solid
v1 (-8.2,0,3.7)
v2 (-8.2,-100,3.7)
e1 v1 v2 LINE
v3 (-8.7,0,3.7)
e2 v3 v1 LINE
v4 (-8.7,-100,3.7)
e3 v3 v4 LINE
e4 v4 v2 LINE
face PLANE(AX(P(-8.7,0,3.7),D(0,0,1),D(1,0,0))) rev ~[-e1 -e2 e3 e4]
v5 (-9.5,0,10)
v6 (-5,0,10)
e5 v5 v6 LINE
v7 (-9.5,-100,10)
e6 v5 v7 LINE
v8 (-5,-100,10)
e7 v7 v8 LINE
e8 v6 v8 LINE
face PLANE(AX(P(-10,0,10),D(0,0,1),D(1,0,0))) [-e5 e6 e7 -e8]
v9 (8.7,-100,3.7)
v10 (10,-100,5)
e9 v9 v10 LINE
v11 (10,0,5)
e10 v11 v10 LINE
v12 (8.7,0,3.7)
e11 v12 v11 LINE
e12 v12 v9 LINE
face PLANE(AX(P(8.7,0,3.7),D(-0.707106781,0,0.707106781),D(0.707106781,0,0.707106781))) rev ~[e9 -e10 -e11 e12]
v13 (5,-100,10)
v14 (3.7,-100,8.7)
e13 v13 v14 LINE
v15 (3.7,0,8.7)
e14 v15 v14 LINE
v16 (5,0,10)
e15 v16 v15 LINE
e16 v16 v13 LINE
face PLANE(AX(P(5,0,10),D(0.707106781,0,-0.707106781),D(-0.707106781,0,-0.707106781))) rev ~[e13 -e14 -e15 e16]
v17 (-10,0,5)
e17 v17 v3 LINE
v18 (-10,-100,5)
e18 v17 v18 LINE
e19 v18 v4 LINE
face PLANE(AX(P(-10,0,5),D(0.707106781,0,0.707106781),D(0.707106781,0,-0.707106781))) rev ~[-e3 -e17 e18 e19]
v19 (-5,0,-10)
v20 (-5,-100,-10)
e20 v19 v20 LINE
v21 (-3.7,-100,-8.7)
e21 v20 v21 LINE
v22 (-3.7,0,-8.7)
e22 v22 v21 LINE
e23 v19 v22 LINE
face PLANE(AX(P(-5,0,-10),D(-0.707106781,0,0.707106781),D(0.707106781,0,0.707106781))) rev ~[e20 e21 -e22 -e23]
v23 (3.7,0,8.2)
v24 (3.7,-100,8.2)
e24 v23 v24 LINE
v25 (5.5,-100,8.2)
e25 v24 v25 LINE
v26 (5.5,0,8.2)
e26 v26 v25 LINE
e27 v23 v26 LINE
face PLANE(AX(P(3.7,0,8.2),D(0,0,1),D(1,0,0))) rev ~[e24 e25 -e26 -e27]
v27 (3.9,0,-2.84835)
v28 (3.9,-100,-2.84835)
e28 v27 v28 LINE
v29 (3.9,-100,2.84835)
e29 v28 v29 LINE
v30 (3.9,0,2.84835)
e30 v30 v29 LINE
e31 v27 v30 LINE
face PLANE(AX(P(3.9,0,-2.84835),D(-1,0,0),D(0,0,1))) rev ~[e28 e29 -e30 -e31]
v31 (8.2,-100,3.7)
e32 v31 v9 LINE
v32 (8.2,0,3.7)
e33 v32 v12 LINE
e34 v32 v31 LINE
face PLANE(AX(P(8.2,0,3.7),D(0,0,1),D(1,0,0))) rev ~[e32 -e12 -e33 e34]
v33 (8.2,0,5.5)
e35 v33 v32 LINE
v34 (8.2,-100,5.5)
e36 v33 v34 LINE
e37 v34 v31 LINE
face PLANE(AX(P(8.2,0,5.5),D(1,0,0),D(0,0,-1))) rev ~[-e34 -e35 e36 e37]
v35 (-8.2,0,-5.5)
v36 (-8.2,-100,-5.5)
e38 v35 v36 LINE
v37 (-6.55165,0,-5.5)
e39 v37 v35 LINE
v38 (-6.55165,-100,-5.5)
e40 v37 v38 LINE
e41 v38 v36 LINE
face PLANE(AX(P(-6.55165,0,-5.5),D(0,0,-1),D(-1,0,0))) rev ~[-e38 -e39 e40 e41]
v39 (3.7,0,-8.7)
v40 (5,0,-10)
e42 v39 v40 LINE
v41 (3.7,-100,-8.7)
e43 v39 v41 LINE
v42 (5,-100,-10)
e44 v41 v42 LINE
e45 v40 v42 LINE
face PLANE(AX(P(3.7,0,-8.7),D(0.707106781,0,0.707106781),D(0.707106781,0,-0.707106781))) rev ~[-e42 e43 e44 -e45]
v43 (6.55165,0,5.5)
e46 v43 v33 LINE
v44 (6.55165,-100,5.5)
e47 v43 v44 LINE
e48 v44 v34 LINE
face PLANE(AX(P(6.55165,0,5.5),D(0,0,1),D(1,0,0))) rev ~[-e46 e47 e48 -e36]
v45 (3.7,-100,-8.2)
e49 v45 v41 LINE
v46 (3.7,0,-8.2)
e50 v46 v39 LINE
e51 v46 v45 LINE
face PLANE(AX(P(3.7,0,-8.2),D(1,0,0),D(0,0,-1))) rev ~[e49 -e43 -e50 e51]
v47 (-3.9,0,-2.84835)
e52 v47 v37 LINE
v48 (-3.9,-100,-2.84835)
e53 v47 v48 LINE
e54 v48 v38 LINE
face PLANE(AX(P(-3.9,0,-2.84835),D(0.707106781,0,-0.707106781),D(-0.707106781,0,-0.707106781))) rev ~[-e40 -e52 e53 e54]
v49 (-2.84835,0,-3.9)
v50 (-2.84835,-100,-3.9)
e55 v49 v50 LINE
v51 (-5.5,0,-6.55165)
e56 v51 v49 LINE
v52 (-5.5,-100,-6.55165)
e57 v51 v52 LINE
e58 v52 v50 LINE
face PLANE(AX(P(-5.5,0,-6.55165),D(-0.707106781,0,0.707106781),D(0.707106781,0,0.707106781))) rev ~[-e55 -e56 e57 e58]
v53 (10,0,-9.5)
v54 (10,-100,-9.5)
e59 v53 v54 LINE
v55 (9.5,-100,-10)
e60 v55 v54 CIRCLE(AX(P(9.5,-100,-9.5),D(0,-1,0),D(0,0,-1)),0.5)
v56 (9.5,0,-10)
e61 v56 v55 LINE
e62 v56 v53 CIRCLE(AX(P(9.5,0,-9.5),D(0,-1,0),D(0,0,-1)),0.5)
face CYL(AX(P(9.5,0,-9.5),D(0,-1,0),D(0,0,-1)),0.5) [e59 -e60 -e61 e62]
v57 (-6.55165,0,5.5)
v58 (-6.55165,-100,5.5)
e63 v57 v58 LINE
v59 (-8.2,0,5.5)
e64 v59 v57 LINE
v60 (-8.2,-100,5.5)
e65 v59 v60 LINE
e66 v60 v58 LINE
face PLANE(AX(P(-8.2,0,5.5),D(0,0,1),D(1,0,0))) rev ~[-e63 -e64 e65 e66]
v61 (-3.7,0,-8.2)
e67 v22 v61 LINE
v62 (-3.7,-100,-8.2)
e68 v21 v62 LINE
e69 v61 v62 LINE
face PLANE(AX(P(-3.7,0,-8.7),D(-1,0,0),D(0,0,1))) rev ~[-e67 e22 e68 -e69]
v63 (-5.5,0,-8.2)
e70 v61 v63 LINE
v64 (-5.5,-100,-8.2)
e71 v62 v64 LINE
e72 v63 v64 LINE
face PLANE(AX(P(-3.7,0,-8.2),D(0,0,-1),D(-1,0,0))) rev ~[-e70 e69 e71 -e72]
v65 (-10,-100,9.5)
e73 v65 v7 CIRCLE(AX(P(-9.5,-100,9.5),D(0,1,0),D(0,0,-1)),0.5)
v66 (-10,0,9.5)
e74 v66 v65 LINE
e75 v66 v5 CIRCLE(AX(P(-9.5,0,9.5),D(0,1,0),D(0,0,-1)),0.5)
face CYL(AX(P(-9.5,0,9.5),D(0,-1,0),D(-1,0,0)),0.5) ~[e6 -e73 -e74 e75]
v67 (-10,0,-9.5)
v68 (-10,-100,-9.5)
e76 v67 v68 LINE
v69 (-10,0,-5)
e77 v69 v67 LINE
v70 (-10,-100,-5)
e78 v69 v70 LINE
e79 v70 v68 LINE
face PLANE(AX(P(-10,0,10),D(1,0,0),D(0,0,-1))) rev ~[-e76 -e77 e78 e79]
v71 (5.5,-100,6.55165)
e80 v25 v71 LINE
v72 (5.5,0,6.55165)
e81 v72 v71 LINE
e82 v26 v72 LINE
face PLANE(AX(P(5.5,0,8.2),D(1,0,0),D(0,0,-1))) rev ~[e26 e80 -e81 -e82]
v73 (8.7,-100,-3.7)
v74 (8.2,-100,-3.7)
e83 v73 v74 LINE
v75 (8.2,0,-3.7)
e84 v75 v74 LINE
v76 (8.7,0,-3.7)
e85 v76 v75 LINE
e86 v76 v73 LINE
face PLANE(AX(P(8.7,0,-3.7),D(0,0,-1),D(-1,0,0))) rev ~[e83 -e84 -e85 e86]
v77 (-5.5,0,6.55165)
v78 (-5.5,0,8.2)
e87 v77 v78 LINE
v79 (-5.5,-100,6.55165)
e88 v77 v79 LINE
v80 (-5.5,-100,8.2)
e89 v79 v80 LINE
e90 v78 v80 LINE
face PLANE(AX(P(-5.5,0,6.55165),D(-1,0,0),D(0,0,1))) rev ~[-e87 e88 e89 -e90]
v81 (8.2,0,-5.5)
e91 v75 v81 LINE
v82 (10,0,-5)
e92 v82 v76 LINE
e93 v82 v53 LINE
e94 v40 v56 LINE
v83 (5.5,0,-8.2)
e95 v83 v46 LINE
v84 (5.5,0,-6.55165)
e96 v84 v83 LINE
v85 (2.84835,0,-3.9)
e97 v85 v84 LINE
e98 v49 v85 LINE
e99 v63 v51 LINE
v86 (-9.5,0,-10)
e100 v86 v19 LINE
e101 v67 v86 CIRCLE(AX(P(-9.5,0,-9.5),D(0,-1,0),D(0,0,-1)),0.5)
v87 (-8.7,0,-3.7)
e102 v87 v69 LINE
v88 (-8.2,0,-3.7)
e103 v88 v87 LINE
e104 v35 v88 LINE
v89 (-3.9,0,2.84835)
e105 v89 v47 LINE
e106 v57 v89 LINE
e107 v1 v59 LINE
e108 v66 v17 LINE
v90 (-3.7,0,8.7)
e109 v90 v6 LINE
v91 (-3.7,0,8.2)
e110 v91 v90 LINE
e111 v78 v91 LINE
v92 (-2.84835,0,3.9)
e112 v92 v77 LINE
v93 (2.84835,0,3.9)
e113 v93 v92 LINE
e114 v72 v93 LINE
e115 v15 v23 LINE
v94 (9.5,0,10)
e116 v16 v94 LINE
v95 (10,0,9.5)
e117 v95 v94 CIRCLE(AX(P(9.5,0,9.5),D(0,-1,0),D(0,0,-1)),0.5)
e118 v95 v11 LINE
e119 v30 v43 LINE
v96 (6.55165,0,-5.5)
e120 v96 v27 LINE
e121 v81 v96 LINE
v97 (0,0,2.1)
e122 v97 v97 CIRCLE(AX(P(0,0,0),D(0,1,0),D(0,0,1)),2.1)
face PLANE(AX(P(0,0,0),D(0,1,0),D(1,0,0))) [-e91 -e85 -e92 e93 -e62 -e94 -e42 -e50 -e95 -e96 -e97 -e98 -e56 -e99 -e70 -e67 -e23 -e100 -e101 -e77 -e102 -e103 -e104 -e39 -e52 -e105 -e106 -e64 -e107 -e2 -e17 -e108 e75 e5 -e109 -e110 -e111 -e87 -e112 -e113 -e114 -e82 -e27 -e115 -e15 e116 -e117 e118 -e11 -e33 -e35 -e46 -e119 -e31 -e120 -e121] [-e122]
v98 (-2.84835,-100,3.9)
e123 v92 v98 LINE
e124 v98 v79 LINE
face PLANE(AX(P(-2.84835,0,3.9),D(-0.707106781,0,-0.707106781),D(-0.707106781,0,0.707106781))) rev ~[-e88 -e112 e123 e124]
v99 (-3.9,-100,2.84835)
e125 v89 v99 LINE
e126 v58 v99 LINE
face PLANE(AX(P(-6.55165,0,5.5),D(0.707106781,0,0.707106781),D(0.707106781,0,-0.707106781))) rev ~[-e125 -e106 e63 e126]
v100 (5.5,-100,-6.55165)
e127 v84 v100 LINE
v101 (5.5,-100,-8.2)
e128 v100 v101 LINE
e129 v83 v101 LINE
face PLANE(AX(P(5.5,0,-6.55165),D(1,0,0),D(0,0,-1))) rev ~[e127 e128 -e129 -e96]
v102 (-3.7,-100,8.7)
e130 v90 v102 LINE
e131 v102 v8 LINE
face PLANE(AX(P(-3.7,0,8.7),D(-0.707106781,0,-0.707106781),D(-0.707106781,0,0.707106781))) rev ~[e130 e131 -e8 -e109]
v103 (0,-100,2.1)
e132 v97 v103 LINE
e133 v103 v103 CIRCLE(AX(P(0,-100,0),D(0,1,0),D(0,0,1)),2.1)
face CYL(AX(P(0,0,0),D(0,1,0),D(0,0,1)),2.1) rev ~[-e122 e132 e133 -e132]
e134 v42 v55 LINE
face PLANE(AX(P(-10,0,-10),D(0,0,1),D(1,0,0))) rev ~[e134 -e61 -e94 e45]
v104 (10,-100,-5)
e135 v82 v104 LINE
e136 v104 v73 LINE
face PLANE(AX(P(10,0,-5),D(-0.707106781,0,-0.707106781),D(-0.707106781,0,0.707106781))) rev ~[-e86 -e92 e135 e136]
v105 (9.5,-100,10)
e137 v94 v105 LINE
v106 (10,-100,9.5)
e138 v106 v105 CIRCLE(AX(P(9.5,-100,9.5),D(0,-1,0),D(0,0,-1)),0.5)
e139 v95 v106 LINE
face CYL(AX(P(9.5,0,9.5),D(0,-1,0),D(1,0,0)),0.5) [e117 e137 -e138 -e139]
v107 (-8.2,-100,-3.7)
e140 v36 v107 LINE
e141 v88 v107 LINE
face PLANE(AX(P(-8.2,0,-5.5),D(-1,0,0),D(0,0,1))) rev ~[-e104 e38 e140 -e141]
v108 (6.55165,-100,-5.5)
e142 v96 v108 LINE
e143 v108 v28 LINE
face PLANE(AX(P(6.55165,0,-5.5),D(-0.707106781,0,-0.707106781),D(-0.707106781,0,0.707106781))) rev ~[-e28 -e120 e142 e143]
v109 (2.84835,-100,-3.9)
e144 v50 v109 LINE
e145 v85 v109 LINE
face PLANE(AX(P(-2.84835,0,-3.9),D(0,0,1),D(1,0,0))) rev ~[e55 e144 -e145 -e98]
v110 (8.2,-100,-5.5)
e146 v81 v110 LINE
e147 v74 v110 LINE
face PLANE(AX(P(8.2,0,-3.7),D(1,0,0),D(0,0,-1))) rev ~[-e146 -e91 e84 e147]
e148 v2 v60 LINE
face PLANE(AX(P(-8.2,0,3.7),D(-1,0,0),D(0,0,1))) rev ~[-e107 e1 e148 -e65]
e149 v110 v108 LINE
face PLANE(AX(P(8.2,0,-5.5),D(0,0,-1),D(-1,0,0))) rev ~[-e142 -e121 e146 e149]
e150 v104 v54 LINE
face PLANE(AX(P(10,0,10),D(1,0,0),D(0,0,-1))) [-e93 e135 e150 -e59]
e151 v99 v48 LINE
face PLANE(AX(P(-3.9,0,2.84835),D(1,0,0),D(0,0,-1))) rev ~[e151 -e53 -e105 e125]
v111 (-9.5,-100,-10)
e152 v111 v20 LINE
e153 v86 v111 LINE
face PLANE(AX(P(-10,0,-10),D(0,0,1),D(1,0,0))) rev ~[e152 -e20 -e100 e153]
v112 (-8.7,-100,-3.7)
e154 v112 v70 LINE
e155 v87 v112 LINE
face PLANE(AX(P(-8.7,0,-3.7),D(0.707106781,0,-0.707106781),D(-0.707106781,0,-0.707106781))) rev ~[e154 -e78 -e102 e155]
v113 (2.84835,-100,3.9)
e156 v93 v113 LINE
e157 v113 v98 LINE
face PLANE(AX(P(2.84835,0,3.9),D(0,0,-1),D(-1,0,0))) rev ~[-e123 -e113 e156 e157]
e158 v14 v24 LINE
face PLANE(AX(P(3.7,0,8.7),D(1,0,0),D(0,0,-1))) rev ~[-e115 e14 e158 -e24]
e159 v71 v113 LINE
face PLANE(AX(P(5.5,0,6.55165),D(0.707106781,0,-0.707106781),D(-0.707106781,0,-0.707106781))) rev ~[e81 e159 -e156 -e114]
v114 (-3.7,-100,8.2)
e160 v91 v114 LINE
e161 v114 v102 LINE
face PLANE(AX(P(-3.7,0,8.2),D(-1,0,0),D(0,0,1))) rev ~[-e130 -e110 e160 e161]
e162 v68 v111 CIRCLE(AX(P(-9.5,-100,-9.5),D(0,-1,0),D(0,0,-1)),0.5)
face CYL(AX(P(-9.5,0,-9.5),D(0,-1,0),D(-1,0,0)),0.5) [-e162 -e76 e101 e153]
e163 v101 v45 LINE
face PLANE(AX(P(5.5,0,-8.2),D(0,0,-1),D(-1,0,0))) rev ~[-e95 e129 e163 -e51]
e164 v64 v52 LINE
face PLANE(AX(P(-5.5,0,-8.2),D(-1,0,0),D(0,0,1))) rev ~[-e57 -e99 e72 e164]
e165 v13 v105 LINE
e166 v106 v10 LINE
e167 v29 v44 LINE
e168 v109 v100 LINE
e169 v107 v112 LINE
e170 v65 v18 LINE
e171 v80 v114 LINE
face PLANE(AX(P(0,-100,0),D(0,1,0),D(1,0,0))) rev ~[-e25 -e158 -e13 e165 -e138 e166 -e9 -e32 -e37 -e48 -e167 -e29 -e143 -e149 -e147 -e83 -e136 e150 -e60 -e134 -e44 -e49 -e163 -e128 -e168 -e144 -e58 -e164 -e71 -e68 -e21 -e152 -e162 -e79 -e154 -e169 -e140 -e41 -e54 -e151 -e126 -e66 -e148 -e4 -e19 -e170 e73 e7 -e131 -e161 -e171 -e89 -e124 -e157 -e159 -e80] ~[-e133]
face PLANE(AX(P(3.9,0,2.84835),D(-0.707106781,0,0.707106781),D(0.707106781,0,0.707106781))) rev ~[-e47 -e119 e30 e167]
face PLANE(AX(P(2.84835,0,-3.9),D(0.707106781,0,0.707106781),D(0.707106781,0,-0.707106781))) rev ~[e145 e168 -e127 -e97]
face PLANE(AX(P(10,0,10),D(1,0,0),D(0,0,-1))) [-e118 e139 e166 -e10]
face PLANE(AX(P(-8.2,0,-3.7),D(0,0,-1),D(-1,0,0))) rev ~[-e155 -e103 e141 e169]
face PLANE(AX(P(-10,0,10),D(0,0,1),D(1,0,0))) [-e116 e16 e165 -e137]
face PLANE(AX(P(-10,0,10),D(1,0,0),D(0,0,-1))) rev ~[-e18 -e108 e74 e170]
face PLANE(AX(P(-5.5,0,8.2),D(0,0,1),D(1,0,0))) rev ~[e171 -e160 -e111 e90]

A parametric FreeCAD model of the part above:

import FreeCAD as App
import Part
import Sketcher
from FreeCAD import Vector
Q = App.Units.Quantity


def edges_at(feature, points):
    """Names of the edges that pass closest to the given points."""
    edges = feature.Shape.Edges
    near = lambda p: min(range(len(edges)), key=lambda i: edges[i].distToShape(Part.Vertex(*p))[0])
    return sorted({f"Edge{near(p) + 1}" for p in points})


def add_polygon(sketch, points):
    """Adds a closed chain of lines whose ends are joined by coincident constraints."""
    first, n = sketch.GeometryCount, len(points)
    for a, b in zip(points, points[1:] + points[:1]):
        sketch.addGeometry(Part.LineSegment(App.Vector(*a, 0), App.Vector(*b, 0)), False)
    for i in range(n):
        sketch.addConstraint(Sketcher.Constraint("Coincident", first + i, 2, first + (i + 1) % n, 1))

doc = App.newDocument("Part")
body = doc.addObject("PartDesign::Body", "Body")

# Sketch on XZ plane
sketch1 = doc.addObject("Sketcher::SketchObject", "Sketch")
body.addObject(sketch1)
sketch1.AttachmentSupport = (doc.XZ_Plane, [""])
sketch1.MapMode = "FlatFace"
add_polygon(sketch1, [(-10, -10), (-10, 10), (10, 10), (10, -10)])  # lines 0-3
sketch1.addGeometry(Part.Circle(Vector(0, 0, 0), Vector(0, 0, 1), 2.1), False)  # 4
sketch1.addConstraint(Sketcher.Constraint("Vertical", 0))
sketch1.addConstraint(Sketcher.Constraint("Horizontal", 1))
sketch1.addConstraint(Sketcher.Constraint("Vertical", 2))
sketch1.addConstraint(Sketcher.Constraint("Horizontal", 3))
sketch1.addConstraint(Sketcher.Constraint("Coincident", 4, 3, -1, 1))
sketch1.addConstraint(Sketcher.Constraint("Symmetric", 0, 2, 2, 2, -1, 1))
sketch1.addConstraint(Sketcher.Constraint("Equal", 3, 0))
sketch1.addConstraint(Sketcher.Constraint("Diameter", 4, Q("4.2 mm")))
sketch1.addConstraint(Sketcher.Constraint("DistanceX", 1, 1, 1, 2, Q("20 mm")))
pad1 = doc.addObject("PartDesign::Pad", "Pad")
body.addObject(pad1)
pad1.Profile = sketch1
pad1.Length = 100

# Sketch on XZ plane
sketch2 = doc.addObject("Sketcher::SketchObject", "Sketch001")
body.addObject(sketch2)
sketch2.AttachmentSupport = (doc.XZ_Plane, [""])
sketch2.MapMode = "FlatFace"
add_polygon(sketch2, [(5.5, 6.6), (2.8, 3.9), (-2.8, 3.9), (-5.5, 6.6), (-5.5, 8.2), (-3.7, 8.2), (-3.7, 8.7), (-5, 10), (5, 10), (3.7, 8.7), (3.7, 8.2), (5.5, 8.2)])  # lines 0-11
add_polygon(sketch2, [(3.9, -2.8), (3.9, 2.8), (6.6, 5.5), (8.2, 5.5), (8.2, 3.7), (8.7, 3.7), (10, 5), (10, -5), (8.7, -3.7), (8.2, -3.7), (8.2, -5.5), (6.6, -5.5)])  # lines 12-23
add_polygon(sketch2, [(-6.6, 5.5), (-3.9, 2.8), (-3.9, -2.8), (-6.6, -5.5), (-8.2, -5.5), (-8.2, -3.7), (-8.7, -3.7), (-10, -5), (-10, 5), (-8.7, 3.7), (-8.2, 3.7), (-8.2, 5.5)])  # lines 24-35
add_polygon(sketch2, [(-2.8, -3.9), (2.8, -3.9), (5.5, -6.6), (5.5, -8.2), (3.7, -8.2), (3.7, -8.7), (5, -10), (-5, -10), (-3.7, -8.7), (-3.7, -8.2), (-5.5, -8.2), (-5.5, -6.6)])  # lines 36-47
sketch2.addConstraint(Sketcher.Constraint("Horizontal", 1))
sketch2.addConstraint(Sketcher.Constraint("Vertical", 3))
sketch2.addConstraint(Sketcher.Constraint("Horizontal", 4))
sketch2.addConstraint(Sketcher.Constraint("Vertical", 5))
sketch2.addConstraint(Sketcher.Constraint("Horizontal", 7))
sketch2.addConstraint(Sketcher.Constraint("Vertical", 9))
sketch2.addConstraint(Sketcher.Constraint("Horizontal", 10))
sketch2.addConstraint(Sketcher.Constraint("Vertical", 11))
sketch2.addConstraint(Sketcher.Constraint("Vertical", 12))
sketch2.addConstraint(Sketcher.Constraint("Horizontal", 14))
sketch2.addConstraint(Sketcher.Constraint("Vertical", 15))
sketch2.addConstraint(Sketcher.Constraint("Horizontal", 16))
sketch2.addConstraint(Sketcher.Constraint("Vertical", 18))
sketch2.addConstraint(Sketcher.Constraint("Horizontal", 20))
sketch2.addConstraint(Sketcher.Constraint("Vertical", 21))
sketch2.addConstraint(Sketcher.Constraint("Horizontal", 22))
sketch2.addConstraint(Sketcher.Constraint("Vertical", 25))
sketch2.addConstraint(Sketcher.Constraint("Horizontal", 27))
sketch2.addConstraint(Sketcher.Constraint("Vertical", 28))
sketch2.addConstraint(Sketcher.Constraint("Horizontal", 29))
sketch2.addConstraint(Sketcher.Constraint("Vertical", 31))
sketch2.addConstraint(Sketcher.Constraint("Horizontal", 33))
sketch2.addConstraint(Sketcher.Constraint("Vertical", 34))
sketch2.addConstraint(Sketcher.Constraint("Horizontal", 35))
sketch2.addConstraint(Sketcher.Constraint("Horizontal", 36))
sketch2.addConstraint(Sketcher.Constraint("Vertical", 38))
sketch2.addConstraint(Sketcher.Constraint("Horizontal", 39))
sketch2.addConstraint(Sketcher.Constraint("Vertical", 40))
sketch2.addConstraint(Sketcher.Constraint("Horizontal", 42))
sketch2.addConstraint(Sketcher.Constraint("Vertical", 44))
sketch2.addConstraint(Sketcher.Constraint("Horizontal", 45))
sketch2.addConstraint(Sketcher.Constraint("Vertical", 46))
sketch2.addConstraint(Sketcher.Constraint("Symmetric", 23, 2, 24, 2, -1, 1))
sketch2.addConstraint(Sketcher.Constraint("Symmetric", 13, 2, 26, 2, -1, 1))
sketch2.addConstraint(Sketcher.Constraint("Symmetric", 15, 2, 28, 2, -1, 1))
sketch2.addConstraint(Sketcher.Constraint("Symmetric", 17, 2, 30, 2, -1, 1))
sketch2.addConstraint(Sketcher.Constraint("Symmetric", 19, 2, 32, 2, -1, 1))
sketch2.addConstraint(Sketcher.Constraint("Symmetric", 21, 2, 34, 2, -1, 1))
sketch2.addConstraint(Sketcher.Constraint("Symmetric", 1, 2, 36, 2, -1, 1))
sketch2.addConstraint(Sketcher.Constraint("Symmetric", 2, 2, 37, 2, -1, 1))
sketch2.addConstraint(Sketcher.Constraint("Symmetric", 4, 2, 39, 2, -1, 1))
sketch2.addConstraint(Sketcher.Constraint("Symmetric", 6, 2, 41, 2, -1, 1))
sketch2.addConstraint(Sketcher.Constraint("Symmetric", 8, 2, 43, 2, -1, 1))
sketch2.addConstraint(Sketcher.Constraint("Symmetric", 10, 2, 45, 2, -1, 1))
sketch2.addConstraint(Sketcher.Constraint("Symmetric", 5, 2, 8, 2, -2))
sketch2.addConstraint(Sketcher.Constraint("Symmetric", 3, 2, 10, 2, -2))
sketch2.addConstraint(Sketcher.Constraint("Symmetric", 22, 2, 26, 2, -2))
sketch2.addConstraint(Sketcher.Constraint("Symmetric", 20, 2, 28, 2, -2))
sketch2.addConstraint(Sketcher.Constraint("Perpendicular", 0, 2))
sketch2.addConstraint(Sketcher.Constraint("Parallel", 2, 6))
sketch2.addConstraint(Sketcher.Constraint("Perpendicular", 6, 8))
sketch2.addConstraint(Sketcher.Constraint("Parallel", 8, 13))
sketch2.addConstraint(Sketcher.Constraint("Parallel", 13, 17))
sketch2.addConstraint(Sketcher.Constraint("Perpendicular", 17, 19))
sketch2.addConstraint(Sketcher.Constraint("Parallel", 19, 23))
sketch2.addConstraint(Sketcher.Constraint("Parallel", 23, 24))
sketch2.addConstraint(Sketcher.Constraint("Perpendicular", 24, 26))
sketch2.addConstraint(Sketcher.Constraint("Parallel", 26, 30))
sketch2.addConstraint(Sketcher.Constraint("Perpendicular", 30, 32))
sketch2.addConstraint(Sketcher.Constraint("Parallel", 37, 41))
sketch2.addConstraint(Sketcher.Constraint("Perpendicular", 41, 43))
sketch2.addConstraint(Sketcher.Constraint("Parallel", 43, 47))
sketch2.addConstraint(Sketcher.Constraint("Horizontal", 2, 2, 11, 2))
sketch2.addConstraint(Sketcher.Constraint("Horizontal", 12, 2, 24, 2))
sketch2.addConstraint(Sketcher.Constraint("Horizontal", 18, 2, 30, 2))
sketch2.addConstraint(Sketcher.Constraint("Horizontal", 37, 2, 46, 2))
sketch2.addConstraint(Sketcher.Constraint("Equal", 35, 3))
sketch2.addConstraint(Sketcher.Constraint("Equal", 33, 5))
sketch2.addConstraint(Sketcher.Constraint("Equal", 36, 12))
sketch2.addConstraint(Sketcher.Constraint("Equal", 45, 15))
sketch2.addConstraint(Sketcher.Constraint("Equal", 42, 18))
sketch2.addConstraint(Sketcher.Constraint("Equal", 2, 13))
sketch2.addConstraint(Sketcher.Constraint("DistanceX", 7, 1, 7, 2, Q("10 mm")))
sketch2.addConstraint(Sketcher.Constraint("DistanceX", 4, 1, 4, 2, Q("1.8 mm")))
sketch2.addConstraint(Sketcher.Constraint("DistanceX", 16, 1, 16, 2, Q("0.5 mm")))
sketch2.addConstraint(Sketcher.Constraint("DistanceY", -1, 1, 6, 2, Q("10 mm")))
sketch2.addConstraint(Sketcher.Constraint("DistanceX", -1, 1, 17, 2, Q("10 mm")))
sketch2.addConstraint(Sketcher.Constraint("DistanceY", -1, 1, 0, 2, Q("3.9 mm")))
sketch2.addConstraint(Sketcher.Constraint("DistanceX", 2, 2, -1, 1, Q("5.5 mm")))
sketch2.addConstraint(Sketcher.Constraint("Distance", 0, Q("3.75 mm")))
pocket1 = doc.addObject("PartDesign::Pocket", "Pocket")
body.addObject(pocket1)
pocket1.Profile = sketch2
pocket1.Type = "ThroughAll"
pocket1.Reversed = True
doc.recompute()

fillet = doc.addObject("PartDesign::Fillet", "Fillet")
body.addObject(fillet)
fillet.Base = (pocket1, edges_at(pocket1, [
    (-10, -50, -10),
    (10, -50, -10),
    (10, -50, 10),
    (-10, -50, 10),
]))
fillet.Radius = 0.5

doc.recompute()
